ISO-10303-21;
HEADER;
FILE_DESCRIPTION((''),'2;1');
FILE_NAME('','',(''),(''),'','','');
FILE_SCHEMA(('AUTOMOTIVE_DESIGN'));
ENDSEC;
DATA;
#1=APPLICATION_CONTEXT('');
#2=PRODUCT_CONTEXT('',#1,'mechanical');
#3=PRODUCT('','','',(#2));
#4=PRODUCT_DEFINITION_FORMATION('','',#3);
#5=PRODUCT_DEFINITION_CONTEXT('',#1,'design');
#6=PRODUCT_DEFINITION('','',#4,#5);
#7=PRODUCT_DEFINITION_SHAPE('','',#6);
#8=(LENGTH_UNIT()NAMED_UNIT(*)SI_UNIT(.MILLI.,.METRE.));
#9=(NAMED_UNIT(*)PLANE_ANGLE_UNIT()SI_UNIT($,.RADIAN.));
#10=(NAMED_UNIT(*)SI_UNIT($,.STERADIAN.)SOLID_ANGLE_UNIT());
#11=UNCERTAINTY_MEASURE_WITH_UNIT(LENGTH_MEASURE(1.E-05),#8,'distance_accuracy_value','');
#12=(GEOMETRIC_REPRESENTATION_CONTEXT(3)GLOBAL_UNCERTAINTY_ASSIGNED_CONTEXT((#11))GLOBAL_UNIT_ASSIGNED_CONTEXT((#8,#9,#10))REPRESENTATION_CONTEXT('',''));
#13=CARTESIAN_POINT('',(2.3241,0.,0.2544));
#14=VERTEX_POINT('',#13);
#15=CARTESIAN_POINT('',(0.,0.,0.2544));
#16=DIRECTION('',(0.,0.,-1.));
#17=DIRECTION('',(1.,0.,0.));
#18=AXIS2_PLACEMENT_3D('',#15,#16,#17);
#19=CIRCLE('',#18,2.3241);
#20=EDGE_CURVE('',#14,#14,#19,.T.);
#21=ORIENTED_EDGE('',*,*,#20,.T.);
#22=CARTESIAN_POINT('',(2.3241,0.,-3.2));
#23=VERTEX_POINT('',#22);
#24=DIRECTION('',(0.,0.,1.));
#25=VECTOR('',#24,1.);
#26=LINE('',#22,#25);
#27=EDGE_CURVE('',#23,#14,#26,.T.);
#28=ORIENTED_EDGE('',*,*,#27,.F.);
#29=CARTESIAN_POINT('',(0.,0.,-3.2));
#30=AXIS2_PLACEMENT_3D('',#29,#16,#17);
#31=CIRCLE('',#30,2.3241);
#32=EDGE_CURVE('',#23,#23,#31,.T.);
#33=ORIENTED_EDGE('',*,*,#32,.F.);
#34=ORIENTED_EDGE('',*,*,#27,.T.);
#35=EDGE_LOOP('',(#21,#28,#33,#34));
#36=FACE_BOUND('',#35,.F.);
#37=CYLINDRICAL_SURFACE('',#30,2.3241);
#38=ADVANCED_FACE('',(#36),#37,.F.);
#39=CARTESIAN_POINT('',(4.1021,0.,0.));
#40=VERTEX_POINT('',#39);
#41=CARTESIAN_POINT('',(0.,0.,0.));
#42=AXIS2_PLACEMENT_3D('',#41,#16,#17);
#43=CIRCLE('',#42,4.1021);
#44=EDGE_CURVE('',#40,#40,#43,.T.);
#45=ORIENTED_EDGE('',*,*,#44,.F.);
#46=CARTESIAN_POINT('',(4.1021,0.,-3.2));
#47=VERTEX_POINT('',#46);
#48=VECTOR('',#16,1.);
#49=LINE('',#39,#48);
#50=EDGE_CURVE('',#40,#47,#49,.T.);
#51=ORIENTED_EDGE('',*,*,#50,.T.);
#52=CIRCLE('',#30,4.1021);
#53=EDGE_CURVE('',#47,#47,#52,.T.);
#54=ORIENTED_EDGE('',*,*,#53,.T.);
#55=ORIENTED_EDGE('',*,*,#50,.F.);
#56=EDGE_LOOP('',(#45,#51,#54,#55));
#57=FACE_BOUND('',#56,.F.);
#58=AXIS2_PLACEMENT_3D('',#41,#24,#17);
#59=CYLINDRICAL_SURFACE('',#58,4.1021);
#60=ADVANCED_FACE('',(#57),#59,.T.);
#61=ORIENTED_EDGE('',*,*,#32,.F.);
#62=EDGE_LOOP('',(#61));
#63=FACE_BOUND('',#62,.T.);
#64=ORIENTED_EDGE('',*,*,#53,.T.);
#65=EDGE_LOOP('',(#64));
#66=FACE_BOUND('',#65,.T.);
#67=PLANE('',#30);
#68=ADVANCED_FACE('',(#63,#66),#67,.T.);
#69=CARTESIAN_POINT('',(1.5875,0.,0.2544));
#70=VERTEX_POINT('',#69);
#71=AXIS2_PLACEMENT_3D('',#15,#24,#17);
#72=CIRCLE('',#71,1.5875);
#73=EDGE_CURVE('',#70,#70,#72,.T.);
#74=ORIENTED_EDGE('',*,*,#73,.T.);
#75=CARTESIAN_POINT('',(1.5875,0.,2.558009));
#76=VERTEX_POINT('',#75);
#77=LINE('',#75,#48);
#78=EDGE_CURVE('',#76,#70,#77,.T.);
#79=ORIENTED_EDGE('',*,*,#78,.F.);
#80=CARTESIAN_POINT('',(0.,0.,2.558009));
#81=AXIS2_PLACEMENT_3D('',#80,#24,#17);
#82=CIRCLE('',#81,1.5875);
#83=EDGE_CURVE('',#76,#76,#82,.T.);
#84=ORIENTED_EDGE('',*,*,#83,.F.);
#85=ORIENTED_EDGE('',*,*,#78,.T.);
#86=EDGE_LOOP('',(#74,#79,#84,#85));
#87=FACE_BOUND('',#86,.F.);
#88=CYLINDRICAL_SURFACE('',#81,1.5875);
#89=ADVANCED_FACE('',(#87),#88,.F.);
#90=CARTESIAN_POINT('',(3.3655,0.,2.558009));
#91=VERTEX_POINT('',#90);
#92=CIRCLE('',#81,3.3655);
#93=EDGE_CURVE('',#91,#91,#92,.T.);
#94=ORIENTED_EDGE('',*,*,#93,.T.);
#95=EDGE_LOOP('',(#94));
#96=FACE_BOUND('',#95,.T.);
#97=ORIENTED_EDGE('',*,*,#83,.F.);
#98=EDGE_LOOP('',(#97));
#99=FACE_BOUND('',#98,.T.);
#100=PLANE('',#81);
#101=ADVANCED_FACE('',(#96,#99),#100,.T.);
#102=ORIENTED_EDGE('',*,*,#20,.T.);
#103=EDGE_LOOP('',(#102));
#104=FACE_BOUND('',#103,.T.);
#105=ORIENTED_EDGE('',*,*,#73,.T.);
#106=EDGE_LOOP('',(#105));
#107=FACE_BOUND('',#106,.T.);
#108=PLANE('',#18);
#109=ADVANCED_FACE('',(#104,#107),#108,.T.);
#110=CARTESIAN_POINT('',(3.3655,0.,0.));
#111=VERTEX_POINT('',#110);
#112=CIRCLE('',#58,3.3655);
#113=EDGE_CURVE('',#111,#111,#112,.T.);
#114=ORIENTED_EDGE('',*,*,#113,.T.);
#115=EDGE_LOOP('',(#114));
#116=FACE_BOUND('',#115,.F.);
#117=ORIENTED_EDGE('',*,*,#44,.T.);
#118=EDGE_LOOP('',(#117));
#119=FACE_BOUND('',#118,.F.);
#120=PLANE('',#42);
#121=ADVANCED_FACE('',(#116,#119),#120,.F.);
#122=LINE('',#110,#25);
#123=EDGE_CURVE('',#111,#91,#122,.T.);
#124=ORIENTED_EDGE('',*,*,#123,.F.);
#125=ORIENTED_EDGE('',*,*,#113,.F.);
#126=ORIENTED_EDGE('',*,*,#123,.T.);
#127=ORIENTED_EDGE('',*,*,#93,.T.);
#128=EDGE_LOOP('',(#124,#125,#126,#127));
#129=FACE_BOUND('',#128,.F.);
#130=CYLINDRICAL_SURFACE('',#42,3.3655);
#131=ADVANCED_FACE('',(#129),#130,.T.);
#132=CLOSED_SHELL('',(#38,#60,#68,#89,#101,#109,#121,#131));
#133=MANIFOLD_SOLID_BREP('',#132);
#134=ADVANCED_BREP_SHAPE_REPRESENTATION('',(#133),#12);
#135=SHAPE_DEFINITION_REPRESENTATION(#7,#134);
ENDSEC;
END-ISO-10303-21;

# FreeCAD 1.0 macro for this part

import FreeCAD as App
import Part
import Sketcher
from FreeCAD import Vector
Q = App.Units.Quantity

doc = App.newDocument("Part")
body = doc.addObject("PartDesign::Body", "Body")

# Sketch on XY plane
sketch1 = doc.addObject("Sketcher::SketchObject", "Sketch")
body.addObject(sketch1)
sketch1.AttachmentSupport = (doc.XY_Plane, [""])
sketch1.MapMode = "FlatFace"
sketch1.addGeometry(Part.Circle(Vector(0, 0, 0), Vector(0, 0, 1), 3.4), False)
sketch1.addConstraint(Sketcher.Constraint("Coincident", 0, 3, -1, 1))
sketch1.addConstraint(Sketcher.Constraint("Diameter", 0, Q("0.265 in")))
pad1 = doc.addObject("PartDesign::Pad", "Pad")
body.addObject(pad1)
pad1.Profile = sketch1
pad1.Length = 2.558009

# Sketch on XY plane
sketch2 = doc.addObject("Sketcher::SketchObject", "Sketch001")
body.addObject(sketch2)
sketch2.AttachmentSupport = (doc.XY_Plane, [""])
sketch2.MapMode = "FlatFace"
sketch2.addGeometry(Part.Circle(Vector(0, 0, 0), Vector(0, 0, 1), 4.1), False)
sketch2.addConstraint(Sketcher.Constraint("Coincident", 0, 3, -1, 1))
sketch2.addConstraint(Sketcher.Constraint("Diameter", 0, Q("0.323 in")))
pad2 = doc.addObject("PartDesign::Pad", "Pad001")
body.addObject(pad2)
pad2.Profile = sketch2
pad2.Length = 3.2
pad2.Reversed = True

# Sketch on XY plane
sketch3 = doc.addObject("Sketcher::SketchObject", "Sketch002")
body.addObject(sketch3)
sketch3.AttachmentSupport = (doc.XY_Plane, [""])
sketch3.MapMode = "FlatFace"
sketch3.AttachmentOffset = App.Placement(Vector(0, 0, -3.2), App.Rotation())
sketch3.addGeometry(Part.Circle(Vector(0, 0, 0), Vector(0, 0, 1), 2.3), False)
sketch3.addConstraint(Sketcher.Constraint("Coincident", 0, 3, -1, 1))
sketch3.addConstraint(Sketcher.Constraint("Diameter", 0, Q("0.183 in")))
pocket1 = doc.addObject("PartDesign::Pocket", "Pocket")
body.addObject(pocket1)
pocket1.Profile = sketch3
pocket1.Length = Q("0.136 in")
pocket1.Reversed = True

# Sketch on XY plane
sketch4 = doc.addObject("Sketcher::SketchObject", "Sketch003")
body.addObject(sketch4)
sketch4.AttachmentSupport = (doc.XY_Plane, [""])
sketch4.MapMode = "FlatFace"
sketch4.AttachmentOffset = App.Placement(Vector(0, 0, 2.558009), App.Rotation())
sketch4.addGeometry(Part.Circle(Vector(0, 0, 0), Vector(0, 0, 1), 1.6), False)
sketch4.addConstraint(Sketcher.Constraint("Coincident", 0, 3, -1, 1))
sketch4.addConstraint(Sketcher.Constraint("Diameter", 0, Q("0.125 in")))
pocket2 = doc.addObject("PartDesign::Pocket", "Pocket001")
body.addObject(pocket2)
pocket2.Profile = sketch4
pocket2.Length = Q("0.3 in")

doc.recompute()
